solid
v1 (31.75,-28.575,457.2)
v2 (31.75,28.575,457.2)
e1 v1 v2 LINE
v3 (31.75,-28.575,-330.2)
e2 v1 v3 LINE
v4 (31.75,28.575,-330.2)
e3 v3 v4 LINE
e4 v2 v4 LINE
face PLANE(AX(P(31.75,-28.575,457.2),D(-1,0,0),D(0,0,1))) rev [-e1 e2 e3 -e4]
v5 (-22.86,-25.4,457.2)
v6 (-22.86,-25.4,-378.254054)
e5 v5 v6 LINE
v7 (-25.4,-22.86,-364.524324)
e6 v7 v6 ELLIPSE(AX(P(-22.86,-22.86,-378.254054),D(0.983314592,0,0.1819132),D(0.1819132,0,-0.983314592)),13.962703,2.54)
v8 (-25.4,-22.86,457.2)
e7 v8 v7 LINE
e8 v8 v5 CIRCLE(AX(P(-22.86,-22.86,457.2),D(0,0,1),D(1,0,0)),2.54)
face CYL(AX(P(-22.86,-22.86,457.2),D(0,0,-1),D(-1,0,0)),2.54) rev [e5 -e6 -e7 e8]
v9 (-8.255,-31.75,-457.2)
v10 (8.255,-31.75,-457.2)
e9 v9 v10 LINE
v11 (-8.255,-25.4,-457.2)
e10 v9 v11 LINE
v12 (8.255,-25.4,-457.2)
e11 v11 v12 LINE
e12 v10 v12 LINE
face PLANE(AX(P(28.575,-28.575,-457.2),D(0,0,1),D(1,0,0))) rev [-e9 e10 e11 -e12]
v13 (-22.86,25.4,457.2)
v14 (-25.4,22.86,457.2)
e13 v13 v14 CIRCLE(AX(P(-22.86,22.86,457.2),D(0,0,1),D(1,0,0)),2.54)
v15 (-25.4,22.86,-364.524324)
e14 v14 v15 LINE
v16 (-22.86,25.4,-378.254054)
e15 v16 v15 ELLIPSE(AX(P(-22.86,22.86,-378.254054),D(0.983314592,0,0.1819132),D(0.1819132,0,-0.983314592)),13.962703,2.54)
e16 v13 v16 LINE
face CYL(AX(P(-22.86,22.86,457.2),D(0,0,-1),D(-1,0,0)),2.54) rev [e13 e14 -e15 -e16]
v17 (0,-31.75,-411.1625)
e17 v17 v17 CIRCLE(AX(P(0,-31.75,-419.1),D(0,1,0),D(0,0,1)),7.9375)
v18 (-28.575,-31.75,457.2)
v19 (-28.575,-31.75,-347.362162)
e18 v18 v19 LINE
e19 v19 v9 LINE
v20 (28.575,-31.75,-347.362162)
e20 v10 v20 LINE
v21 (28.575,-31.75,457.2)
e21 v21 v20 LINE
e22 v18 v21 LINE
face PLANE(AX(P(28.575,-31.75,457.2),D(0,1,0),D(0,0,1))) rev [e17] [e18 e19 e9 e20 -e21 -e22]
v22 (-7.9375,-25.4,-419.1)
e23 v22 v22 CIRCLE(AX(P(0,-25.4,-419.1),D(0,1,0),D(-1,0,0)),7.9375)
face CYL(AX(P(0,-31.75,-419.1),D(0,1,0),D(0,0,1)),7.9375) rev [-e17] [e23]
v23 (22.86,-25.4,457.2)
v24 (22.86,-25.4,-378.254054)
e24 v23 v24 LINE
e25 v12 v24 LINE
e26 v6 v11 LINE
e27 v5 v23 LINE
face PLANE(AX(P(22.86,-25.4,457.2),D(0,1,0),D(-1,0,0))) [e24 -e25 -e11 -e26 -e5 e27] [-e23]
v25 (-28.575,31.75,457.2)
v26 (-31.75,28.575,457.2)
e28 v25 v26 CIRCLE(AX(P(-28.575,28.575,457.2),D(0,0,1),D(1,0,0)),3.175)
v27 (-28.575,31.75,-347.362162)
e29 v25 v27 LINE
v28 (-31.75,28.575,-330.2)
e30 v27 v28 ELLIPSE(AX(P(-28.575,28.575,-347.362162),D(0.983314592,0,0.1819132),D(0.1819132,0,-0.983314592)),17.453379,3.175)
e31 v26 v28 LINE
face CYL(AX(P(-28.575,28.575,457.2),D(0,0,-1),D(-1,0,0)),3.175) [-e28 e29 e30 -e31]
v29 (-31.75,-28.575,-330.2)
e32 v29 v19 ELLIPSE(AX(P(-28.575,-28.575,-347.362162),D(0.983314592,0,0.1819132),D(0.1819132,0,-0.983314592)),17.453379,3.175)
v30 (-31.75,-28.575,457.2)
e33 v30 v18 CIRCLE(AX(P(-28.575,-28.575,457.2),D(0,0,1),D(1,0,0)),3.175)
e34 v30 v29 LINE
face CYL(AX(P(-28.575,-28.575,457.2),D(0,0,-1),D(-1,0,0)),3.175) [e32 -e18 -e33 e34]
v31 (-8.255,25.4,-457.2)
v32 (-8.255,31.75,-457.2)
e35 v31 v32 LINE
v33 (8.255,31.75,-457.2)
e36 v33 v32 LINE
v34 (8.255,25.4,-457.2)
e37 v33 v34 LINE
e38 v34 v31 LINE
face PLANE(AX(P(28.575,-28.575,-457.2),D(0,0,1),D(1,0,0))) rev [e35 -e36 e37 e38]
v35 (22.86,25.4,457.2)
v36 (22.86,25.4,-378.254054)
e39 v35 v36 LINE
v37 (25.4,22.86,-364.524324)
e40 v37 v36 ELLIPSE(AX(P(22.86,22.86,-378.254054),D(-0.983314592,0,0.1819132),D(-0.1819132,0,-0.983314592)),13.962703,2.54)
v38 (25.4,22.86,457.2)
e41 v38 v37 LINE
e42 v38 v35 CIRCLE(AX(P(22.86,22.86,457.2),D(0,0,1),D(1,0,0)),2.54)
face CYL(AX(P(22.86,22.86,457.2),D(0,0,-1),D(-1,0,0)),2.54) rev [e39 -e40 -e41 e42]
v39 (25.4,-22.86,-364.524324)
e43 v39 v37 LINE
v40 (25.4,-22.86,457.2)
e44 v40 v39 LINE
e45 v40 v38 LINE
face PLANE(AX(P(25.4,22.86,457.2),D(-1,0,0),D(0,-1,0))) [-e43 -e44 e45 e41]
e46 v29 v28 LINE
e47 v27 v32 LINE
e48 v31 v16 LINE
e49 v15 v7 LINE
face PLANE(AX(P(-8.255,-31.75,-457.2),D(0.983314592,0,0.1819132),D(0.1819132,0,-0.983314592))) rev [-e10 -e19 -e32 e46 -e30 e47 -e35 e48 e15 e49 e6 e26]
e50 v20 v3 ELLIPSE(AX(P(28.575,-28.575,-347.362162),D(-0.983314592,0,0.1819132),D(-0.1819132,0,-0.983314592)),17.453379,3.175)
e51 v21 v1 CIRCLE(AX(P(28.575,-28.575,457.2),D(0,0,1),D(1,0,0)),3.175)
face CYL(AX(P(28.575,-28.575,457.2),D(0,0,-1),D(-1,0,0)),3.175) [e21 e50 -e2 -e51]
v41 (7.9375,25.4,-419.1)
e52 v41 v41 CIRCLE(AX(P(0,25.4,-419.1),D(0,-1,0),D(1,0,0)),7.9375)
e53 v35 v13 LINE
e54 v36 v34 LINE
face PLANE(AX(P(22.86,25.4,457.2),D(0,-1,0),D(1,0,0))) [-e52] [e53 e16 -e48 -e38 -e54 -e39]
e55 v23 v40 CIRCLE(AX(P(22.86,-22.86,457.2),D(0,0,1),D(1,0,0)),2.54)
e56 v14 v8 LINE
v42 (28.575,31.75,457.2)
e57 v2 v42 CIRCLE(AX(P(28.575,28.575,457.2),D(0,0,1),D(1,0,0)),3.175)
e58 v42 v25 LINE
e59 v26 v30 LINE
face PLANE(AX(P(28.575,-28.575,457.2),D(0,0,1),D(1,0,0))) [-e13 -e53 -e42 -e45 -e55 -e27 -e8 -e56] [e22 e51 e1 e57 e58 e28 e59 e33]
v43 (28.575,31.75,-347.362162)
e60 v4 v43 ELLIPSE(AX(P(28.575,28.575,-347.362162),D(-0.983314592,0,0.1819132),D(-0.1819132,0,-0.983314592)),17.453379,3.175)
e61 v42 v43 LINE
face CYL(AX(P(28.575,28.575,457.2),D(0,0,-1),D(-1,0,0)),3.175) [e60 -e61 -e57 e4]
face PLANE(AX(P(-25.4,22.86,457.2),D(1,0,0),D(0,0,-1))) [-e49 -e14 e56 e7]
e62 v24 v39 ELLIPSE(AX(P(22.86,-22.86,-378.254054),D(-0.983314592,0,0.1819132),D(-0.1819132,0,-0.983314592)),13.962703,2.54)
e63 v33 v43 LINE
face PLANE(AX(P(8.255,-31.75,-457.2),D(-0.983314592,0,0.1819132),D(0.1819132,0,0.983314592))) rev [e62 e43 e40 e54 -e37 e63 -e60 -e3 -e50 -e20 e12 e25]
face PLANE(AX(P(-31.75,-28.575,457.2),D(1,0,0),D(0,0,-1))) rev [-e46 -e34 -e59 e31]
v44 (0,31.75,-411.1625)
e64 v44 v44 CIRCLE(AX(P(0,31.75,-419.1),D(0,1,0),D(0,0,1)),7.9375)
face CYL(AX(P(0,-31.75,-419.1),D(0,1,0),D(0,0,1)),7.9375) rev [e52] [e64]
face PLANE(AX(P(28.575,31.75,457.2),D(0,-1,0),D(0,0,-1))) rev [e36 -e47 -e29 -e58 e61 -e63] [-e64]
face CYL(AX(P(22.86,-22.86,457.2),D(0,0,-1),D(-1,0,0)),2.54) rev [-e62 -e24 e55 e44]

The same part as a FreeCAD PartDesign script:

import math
import FreeCAD as App
import Part
import Sketcher

V = App.Vector
Q = App.Units.Quantity


def add_polygon(sketch, points):
    """Adds a closed chain of lines whose ends are joined by coincident constraints."""
    first, n = sketch.GeometryCount, len(points)
    for a, b in zip(points, points[1:] + points[:1]):
        sketch.addGeometry(Part.LineSegment(App.Vector(*a, 0), App.Vector(*b, 0)), False)
    for i in range(n):
        sketch.addConstraint(Sketcher.Constraint("Coincident", first + i, 2, first + (i + 1) % n, 1))

doc = App.newDocument("Part")
body = doc.addObject("PartDesign::Body", "Body")

sketch1 = doc.addObject("Sketcher::SketchObject", "Sketch")
body.addObject(sketch1)
sketch1.AttachmentSupport = (doc.XY_Plane, [""])
sketch1.MapMode = "FlatFace"
sketch1.addGeometry([
    Part.LineSegment(V(31.75, -28.575, 0), V(31.75, 28.575, 0)),
    Part.ArcOfCircle(Part.Circle(V(28.575, 28.575, 0), V(0, 0, 1), 3.175), math.radians(0), math.radians(90)),
    Part.LineSegment(V(28.575, 31.75, 0), V(-28.575, 31.75, 0)),
    Part.ArcOfCircle(Part.Circle(V(-28.575, 28.575, 0), V(0, 0, 1), 3.175), math.radians(90), math.radians(180)),
    Part.LineSegment(V(-31.75, 28.575, 0), V(-31.75, -28.575, 0)),
    Part.ArcOfCircle(Part.Circle(V(-28.575, -28.575, 0), V(0, 0, 1), 3.175), math.radians(-180), math.radians(-90)),
    Part.LineSegment(V(-28.575, -31.75, 0), V(28.575, -31.75, 0)),
    Part.ArcOfCircle(Part.Circle(V(28.575, -28.575, 0), V(0, 0, 1), 3.175), math.radians(-90), math.radians(0)),
    Part.ArcOfCircle(Part.Circle(V(22.86, 22.86, 0), V(0, 0, 1), 2.54), math.radians(0), math.radians(90)),
    Part.LineSegment(V(25.4, 22.86, 0), V(25.4, -22.86, 0)),
    Part.ArcOfCircle(Part.Circle(V(22.86, -22.86, 0), V(0, 0, 1), 2.54), math.radians(-90), math.radians(0)),
    Part.LineSegment(V(22.86, -25.4, 0), V(-22.86, -25.4, 0)),
    Part.ArcOfCircle(Part.Circle(V(-22.86, -22.86, 0), V(0, 0, 1), 2.54), math.radians(-180), math.radians(-90)),
    Part.LineSegment(V(-25.4, -22.86, 0), V(-25.4, 22.86, 0)),
    Part.ArcOfCircle(Part.Circle(V(-22.86, 22.86, 0), V(0, 0, 1), 2.54), math.radians(90), math.radians(180)),
    Part.LineSegment(V(-22.86, 25.4, 0), V(22.86, 25.4, 0)),
], False)
sketch1.addConstraint([
    Sketcher.Constraint("Tangent", 0, 2, 1, 1),
    Sketcher.Constraint("Tangent", 1, 2, 2, 1),
    Sketcher.Constraint("Tangent", 2, 2, 3, 1),
    Sketcher.Constraint("Tangent", 3, 2, 4, 1),
    Sketcher.Constraint("Tangent", 4, 2, 5, 1),
    Sketcher.Constraint("Tangent", 5, 2, 6, 1),
    Sketcher.Constraint("Tangent", 6, 2, 7, 1),
    Sketcher.Constraint("Tangent", 7, 2, 0, 1),
    Sketcher.Constraint("Tangent", 8, 1, 9, 1),
    Sketcher.Constraint("Tangent", 9, 2, 10, 2),
    Sketcher.Constraint("Tangent", 10, 1, 11, 1),
    Sketcher.Constraint("Tangent", 11, 2, 12, 2),
    Sketcher.Constraint("Tangent", 12, 1, 13, 1),
    Sketcher.Constraint("Tangent", 13, 2, 14, 2),
    Sketcher.Constraint("Tangent", 14, 1, 15, 1),
    Sketcher.Constraint("Tangent", 15, 2, 8, 2),
    Sketcher.Constraint("Vertical", 0),
    Sketcher.Constraint("Horizontal", 2),
    Sketcher.Constraint("Vertical", 4),
    Sketcher.Constraint("Horizontal", 6),
    Sketcher.Constraint("Vertical", 9),
    Sketcher.Constraint("Horizontal", 11),
    Sketcher.Constraint("Vertical", 13),
    Sketcher.Constraint("Horizontal", 15),
    Sketcher.Constraint("Equal", 1, 3),
    Sketcher.Constraint("Equal", 3, 5),
    Sketcher.Constraint("Equal", 5, 7),
    Sketcher.Constraint("Equal", 8, 10),
    Sketcher.Constraint("Equal", 10, 12),
    Sketcher.Constraint("Equal", 12, 14),
    Sketcher.Constraint("Symmetric", 1, 3, 5, 3, -1, 1),
    Sketcher.Constraint("Symmetric", 8, 3, 12, 3, -1, 1),
    Sketcher.Constraint("Equal", 6, 0),
    Sketcher.Constraint("Equal", 15, 9),
    Sketcher.Constraint("Radius", 8, Q("0.1 in")),
    Sketcher.Constraint("DistanceX", 11, 2, 11, 1, Q("1.8 in")),
    Sketcher.Constraint("Radius", 1, Q("0.125 in")),
    Sketcher.Constraint("DistanceX", 2, 2, 2, 1, Q("2.25 in")),
])
pad1 = doc.addObject("PartDesign::Pad", "Pad")
body.addObject(pad1)
pad1.Profile = sketch1
pad1.Type = "TwoLengths"
pad1.Length = Q("18 in")
pad1.Length2 = Q("18 in")

sketch2 = doc.addObject("Sketcher::SketchObject", "Sketch001")
body.addObject(sketch2)
sketch2.AttachmentSupport = (doc.XZ_Plane, [""])
sketch2.MapMode = "FlatFace"
sketch2.AttachmentOffset = App.Placement(V(0, 0, -1.25 * 25.4), App.Rotation())
sketch2.addGeometry(Part.Circle(V(0, -419.1, 0), V(0, 0, 1), 7.9375), False)
add_polygon(sketch2, [(8.255, -457.2), (31.75, -330.2), (31.75, -457.2)])
add_polygon(sketch2, [(-31.75, -330.2), (-8.255, -457.2), (-31.75, -457.2)])
sketch2.addConstraint([
    Sketcher.Constraint("Vertical", 2),
    Sketcher.Constraint("Horizontal", 3),
    Sketcher.Constraint("Horizontal", 5),
    Sketcher.Constraint("Vertical", 6),
    Sketcher.Constraint("Symmetric", 3, 2, 4, 2, -2),
    Sketcher.Constraint("Symmetric", 1, 2, 6, 2, -2),
    Sketcher.Constraint("PointOnObject", 0, 3, -2),
    Sketcher.Constraint("DistanceY", 2, 2, 2, 1, Q("5 in")),
    Sketcher.Constraint("Diameter", 0, Q("0.625 in")),
    Sketcher.Constraint("DistanceY", 1, 2, -1, 1, Q("13 in")),
    Sketcher.Constraint("DistanceY", 0, 3, -1, 1, Q("16.5 in")),
    Sketcher.Constraint("DistanceX", 5, 2, 2, 2, Q("2.5 in")),
    Sketcher.Constraint("DistanceX", 3, 2, 3, 1, Q("0.925 in")),
])
pocket1 = doc.addObject("PartDesign::Pocket", "Pocket")
body.addObject(pocket1)
pocket1.Profile = sketch2
pocket1.Type = "ThroughAll"
pocket1.Reversed = True

doc.recompute()
